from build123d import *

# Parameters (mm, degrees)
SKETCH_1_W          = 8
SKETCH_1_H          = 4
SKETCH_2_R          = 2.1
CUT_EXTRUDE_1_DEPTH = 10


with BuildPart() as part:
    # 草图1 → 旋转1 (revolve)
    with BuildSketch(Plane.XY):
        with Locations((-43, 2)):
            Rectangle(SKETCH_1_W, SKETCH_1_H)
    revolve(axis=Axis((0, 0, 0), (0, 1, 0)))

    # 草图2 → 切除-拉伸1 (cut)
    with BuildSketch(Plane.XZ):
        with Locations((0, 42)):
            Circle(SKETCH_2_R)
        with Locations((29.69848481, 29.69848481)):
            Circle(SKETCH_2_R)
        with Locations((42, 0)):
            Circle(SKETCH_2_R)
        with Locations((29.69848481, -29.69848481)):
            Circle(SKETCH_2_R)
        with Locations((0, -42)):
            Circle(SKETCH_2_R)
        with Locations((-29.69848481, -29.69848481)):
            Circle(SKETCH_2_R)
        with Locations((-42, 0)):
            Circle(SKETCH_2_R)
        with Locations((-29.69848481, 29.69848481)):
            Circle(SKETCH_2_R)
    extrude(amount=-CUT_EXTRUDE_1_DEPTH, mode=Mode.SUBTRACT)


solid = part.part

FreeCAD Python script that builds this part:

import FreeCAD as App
import Part
import Sketcher

V = App.Vector
Q = App.Units.Quantity


def add_polygon(sketch, points):
    """Adds a closed chain of lines whose ends are joined by coincident constraints."""
    first, n = sketch.GeometryCount, len(points)
    for a, b in zip(points, points[1:] + points[:1]):
        sketch.addGeometry(Part.LineSegment(App.Vector(*a, 0), App.Vector(*b, 0)), False)
    for i in range(n):
        sketch.addConstraint(Sketcher.Constraint("Coincident", first + i, 2, first + (i + 1) % n, 1))

doc = App.newDocument("Part")
params = doc.addObject("Spreadsheet::Sheet", "Params")
for row, (alias, value) in enumerate([
    ("sketch1_width", "8 mm"),
    ("sketch1_height", "4 mm"),
    ("revolution_angle", "360 deg"),
    ("sketch2_diameter", "4.2 mm"),
    ("pocket1_length", "10 mm"),
], start=1):
    params.set(f"A{row}", alias)
    params.set(f"B{row}", "=" + value)
    params.setAlias(f"B{row}", alias)

body = doc.addObject("PartDesign::Body", "Body")

# Sketch on XY plane
sketch1 = body.newObject("Sketcher::SketchObject", "Sketch")
sketch1.AttachmentSupport = (doc.getObject("XY_Plane"), [""])
sketch1.MapMode = "FlatFace"
add_polygon(sketch1, [(-47, 4), (-47, 0), (-39, 0), (-39, 4)])  # lines 0-3
sketch1.addConstraint(Sketcher.Constraint("Vertical", 0))
sketch1.addConstraint(Sketcher.Constraint("Horizontal", 1))
sketch1.addConstraint(Sketcher.Constraint("Vertical", 2))
sketch1.addConstraint(Sketcher.Constraint("Horizontal", 3))
sketch1.addConstraint(Sketcher.Constraint("PointOnObject", 0, 2, -1))
sketch1.addConstraint(Sketcher.Constraint("DistanceX", 1, 1, 1, 2, Q("8 mm")))
sketch1.addConstraint(Sketcher.Constraint("DistanceY", 0, 2, 0, 1, Q("4 mm")))
sketch1.addConstraint(Sketcher.Constraint("DistanceX", 0, 2, -1, 1, Q("47 mm")))
sketch1.setExpression("Constraints[9]", "Params.sketch1_width")
sketch1.setExpression("Constraints[10]", "Params.sketch1_height")
revolution = body.newObject("PartDesign::Revolution", "Revolution")
revolution.Profile = sketch1
revolution.ReferenceAxis = (sketch1, ["V_Axis"])
revolution.setExpression("Angle", "Params.revolution_angle")

# Sketch on XZ plane
sketch2 = body.newObject("Sketcher::SketchObject", "Sketch001")
sketch2.AttachmentSupport = (doc.getObject("XZ_Plane"), [""])
sketch2.MapMode = "FlatFace"
sketch2.addGeometry(Part.Circle(V(0, 42, 0), V(0, 0, 1), 2.1), False)
sketch2.addGeometry(Part.Circle(V(29.7, 29.7, 0), V(0, 0, 1), 2.1), False)
sketch2.addGeometry(Part.Circle(V(42, 0, 0), V(0, 0, 1), 2.1), False)
sketch2.addGeometry(Part.Circle(V(29.7, -29.7, 0), V(0, 0, 1), 2.1), False)
sketch2.addGeometry(Part.Circle(V(0, -42, 0), V(0, 0, 1), 2.1), False)
sketch2.addGeometry(Part.Circle(V(-29.7, -29.7, 0), V(0, 0, 1), 2.1), False)
sketch2.addGeometry(Part.Circle(V(-42, 0, 0), V(0, 0, 1), 2.1), False)
sketch2.addGeometry(Part.Circle(V(-29.7, 29.7, 0), V(0, 0, 1), 2.1), False)
sketch2.addConstraint(Sketcher.Constraint("Equal", 0, 1))
sketch2.addConstraint(Sketcher.Constraint("Equal", 1, 2))
sketch2.addConstraint(Sketcher.Constraint("Equal", 2, 3))
sketch2.addConstraint(Sketcher.Constraint("Equal", 3, 4))
sketch2.addConstraint(Sketcher.Constraint("Equal", 4, 5))
sketch2.addConstraint(Sketcher.Constraint("Equal", 5, 6))
sketch2.addConstraint(Sketcher.Constraint("Equal", 6, 7))
sketch2.addConstraint(Sketcher.Constraint("Symmetric", 0, 3, 4, 3, -1, 1))
sketch2.addConstraint(Sketcher.Constraint("Symmetric", 1, 3, 5, 3, -1, 1))
sketch2.addConstraint(Sketcher.Constraint("Symmetric", 2, 3, 6, 3, -1, 1))
sketch2.addConstraint(Sketcher.Constraint("Symmetric", 3, 3, 7, 3, -1, 1))
sketch2.addConstraint(Sketcher.Constraint("Symmetric", 3, 3, 5, 3, -2))
sketch2.addConstraint(Sketcher.Constraint("PointOnObject", 0, 3, -2))
sketch2.addConstraint(Sketcher.Constraint("PointOnObject", 2, 3, -1))
sketch2.addConstraint(Sketcher.Constraint("Diameter", 0, Q("4.2 mm")))
sketch2.addConstraint(Sketcher.Constraint("DistanceY", -1, 1, 0, 3, Q("42 mm")))
sketch2.addConstraint(Sketcher.Constraint("DistanceX", -1, 1, 2, 3, Q("42 mm")))
sketch2.addConstraint(Sketcher.Constraint("DistanceY", 3, 3, 1, 3, Q("59.39697 mm")))
sketch2.addConstraint(Sketcher.Constraint("DistanceX", 5, 3, 3, 3, Q("59.39697 mm")))
sketch2.setExpression("Constraints[14]", "Params.sketch2_diameter")
pocket1 = body.newObject("PartDesign::Pocket", "Pocket")
pocket1.Profile = sketch2
pocket1.setExpression("Length", "Params.pocket1_length")

doc.recompute()
